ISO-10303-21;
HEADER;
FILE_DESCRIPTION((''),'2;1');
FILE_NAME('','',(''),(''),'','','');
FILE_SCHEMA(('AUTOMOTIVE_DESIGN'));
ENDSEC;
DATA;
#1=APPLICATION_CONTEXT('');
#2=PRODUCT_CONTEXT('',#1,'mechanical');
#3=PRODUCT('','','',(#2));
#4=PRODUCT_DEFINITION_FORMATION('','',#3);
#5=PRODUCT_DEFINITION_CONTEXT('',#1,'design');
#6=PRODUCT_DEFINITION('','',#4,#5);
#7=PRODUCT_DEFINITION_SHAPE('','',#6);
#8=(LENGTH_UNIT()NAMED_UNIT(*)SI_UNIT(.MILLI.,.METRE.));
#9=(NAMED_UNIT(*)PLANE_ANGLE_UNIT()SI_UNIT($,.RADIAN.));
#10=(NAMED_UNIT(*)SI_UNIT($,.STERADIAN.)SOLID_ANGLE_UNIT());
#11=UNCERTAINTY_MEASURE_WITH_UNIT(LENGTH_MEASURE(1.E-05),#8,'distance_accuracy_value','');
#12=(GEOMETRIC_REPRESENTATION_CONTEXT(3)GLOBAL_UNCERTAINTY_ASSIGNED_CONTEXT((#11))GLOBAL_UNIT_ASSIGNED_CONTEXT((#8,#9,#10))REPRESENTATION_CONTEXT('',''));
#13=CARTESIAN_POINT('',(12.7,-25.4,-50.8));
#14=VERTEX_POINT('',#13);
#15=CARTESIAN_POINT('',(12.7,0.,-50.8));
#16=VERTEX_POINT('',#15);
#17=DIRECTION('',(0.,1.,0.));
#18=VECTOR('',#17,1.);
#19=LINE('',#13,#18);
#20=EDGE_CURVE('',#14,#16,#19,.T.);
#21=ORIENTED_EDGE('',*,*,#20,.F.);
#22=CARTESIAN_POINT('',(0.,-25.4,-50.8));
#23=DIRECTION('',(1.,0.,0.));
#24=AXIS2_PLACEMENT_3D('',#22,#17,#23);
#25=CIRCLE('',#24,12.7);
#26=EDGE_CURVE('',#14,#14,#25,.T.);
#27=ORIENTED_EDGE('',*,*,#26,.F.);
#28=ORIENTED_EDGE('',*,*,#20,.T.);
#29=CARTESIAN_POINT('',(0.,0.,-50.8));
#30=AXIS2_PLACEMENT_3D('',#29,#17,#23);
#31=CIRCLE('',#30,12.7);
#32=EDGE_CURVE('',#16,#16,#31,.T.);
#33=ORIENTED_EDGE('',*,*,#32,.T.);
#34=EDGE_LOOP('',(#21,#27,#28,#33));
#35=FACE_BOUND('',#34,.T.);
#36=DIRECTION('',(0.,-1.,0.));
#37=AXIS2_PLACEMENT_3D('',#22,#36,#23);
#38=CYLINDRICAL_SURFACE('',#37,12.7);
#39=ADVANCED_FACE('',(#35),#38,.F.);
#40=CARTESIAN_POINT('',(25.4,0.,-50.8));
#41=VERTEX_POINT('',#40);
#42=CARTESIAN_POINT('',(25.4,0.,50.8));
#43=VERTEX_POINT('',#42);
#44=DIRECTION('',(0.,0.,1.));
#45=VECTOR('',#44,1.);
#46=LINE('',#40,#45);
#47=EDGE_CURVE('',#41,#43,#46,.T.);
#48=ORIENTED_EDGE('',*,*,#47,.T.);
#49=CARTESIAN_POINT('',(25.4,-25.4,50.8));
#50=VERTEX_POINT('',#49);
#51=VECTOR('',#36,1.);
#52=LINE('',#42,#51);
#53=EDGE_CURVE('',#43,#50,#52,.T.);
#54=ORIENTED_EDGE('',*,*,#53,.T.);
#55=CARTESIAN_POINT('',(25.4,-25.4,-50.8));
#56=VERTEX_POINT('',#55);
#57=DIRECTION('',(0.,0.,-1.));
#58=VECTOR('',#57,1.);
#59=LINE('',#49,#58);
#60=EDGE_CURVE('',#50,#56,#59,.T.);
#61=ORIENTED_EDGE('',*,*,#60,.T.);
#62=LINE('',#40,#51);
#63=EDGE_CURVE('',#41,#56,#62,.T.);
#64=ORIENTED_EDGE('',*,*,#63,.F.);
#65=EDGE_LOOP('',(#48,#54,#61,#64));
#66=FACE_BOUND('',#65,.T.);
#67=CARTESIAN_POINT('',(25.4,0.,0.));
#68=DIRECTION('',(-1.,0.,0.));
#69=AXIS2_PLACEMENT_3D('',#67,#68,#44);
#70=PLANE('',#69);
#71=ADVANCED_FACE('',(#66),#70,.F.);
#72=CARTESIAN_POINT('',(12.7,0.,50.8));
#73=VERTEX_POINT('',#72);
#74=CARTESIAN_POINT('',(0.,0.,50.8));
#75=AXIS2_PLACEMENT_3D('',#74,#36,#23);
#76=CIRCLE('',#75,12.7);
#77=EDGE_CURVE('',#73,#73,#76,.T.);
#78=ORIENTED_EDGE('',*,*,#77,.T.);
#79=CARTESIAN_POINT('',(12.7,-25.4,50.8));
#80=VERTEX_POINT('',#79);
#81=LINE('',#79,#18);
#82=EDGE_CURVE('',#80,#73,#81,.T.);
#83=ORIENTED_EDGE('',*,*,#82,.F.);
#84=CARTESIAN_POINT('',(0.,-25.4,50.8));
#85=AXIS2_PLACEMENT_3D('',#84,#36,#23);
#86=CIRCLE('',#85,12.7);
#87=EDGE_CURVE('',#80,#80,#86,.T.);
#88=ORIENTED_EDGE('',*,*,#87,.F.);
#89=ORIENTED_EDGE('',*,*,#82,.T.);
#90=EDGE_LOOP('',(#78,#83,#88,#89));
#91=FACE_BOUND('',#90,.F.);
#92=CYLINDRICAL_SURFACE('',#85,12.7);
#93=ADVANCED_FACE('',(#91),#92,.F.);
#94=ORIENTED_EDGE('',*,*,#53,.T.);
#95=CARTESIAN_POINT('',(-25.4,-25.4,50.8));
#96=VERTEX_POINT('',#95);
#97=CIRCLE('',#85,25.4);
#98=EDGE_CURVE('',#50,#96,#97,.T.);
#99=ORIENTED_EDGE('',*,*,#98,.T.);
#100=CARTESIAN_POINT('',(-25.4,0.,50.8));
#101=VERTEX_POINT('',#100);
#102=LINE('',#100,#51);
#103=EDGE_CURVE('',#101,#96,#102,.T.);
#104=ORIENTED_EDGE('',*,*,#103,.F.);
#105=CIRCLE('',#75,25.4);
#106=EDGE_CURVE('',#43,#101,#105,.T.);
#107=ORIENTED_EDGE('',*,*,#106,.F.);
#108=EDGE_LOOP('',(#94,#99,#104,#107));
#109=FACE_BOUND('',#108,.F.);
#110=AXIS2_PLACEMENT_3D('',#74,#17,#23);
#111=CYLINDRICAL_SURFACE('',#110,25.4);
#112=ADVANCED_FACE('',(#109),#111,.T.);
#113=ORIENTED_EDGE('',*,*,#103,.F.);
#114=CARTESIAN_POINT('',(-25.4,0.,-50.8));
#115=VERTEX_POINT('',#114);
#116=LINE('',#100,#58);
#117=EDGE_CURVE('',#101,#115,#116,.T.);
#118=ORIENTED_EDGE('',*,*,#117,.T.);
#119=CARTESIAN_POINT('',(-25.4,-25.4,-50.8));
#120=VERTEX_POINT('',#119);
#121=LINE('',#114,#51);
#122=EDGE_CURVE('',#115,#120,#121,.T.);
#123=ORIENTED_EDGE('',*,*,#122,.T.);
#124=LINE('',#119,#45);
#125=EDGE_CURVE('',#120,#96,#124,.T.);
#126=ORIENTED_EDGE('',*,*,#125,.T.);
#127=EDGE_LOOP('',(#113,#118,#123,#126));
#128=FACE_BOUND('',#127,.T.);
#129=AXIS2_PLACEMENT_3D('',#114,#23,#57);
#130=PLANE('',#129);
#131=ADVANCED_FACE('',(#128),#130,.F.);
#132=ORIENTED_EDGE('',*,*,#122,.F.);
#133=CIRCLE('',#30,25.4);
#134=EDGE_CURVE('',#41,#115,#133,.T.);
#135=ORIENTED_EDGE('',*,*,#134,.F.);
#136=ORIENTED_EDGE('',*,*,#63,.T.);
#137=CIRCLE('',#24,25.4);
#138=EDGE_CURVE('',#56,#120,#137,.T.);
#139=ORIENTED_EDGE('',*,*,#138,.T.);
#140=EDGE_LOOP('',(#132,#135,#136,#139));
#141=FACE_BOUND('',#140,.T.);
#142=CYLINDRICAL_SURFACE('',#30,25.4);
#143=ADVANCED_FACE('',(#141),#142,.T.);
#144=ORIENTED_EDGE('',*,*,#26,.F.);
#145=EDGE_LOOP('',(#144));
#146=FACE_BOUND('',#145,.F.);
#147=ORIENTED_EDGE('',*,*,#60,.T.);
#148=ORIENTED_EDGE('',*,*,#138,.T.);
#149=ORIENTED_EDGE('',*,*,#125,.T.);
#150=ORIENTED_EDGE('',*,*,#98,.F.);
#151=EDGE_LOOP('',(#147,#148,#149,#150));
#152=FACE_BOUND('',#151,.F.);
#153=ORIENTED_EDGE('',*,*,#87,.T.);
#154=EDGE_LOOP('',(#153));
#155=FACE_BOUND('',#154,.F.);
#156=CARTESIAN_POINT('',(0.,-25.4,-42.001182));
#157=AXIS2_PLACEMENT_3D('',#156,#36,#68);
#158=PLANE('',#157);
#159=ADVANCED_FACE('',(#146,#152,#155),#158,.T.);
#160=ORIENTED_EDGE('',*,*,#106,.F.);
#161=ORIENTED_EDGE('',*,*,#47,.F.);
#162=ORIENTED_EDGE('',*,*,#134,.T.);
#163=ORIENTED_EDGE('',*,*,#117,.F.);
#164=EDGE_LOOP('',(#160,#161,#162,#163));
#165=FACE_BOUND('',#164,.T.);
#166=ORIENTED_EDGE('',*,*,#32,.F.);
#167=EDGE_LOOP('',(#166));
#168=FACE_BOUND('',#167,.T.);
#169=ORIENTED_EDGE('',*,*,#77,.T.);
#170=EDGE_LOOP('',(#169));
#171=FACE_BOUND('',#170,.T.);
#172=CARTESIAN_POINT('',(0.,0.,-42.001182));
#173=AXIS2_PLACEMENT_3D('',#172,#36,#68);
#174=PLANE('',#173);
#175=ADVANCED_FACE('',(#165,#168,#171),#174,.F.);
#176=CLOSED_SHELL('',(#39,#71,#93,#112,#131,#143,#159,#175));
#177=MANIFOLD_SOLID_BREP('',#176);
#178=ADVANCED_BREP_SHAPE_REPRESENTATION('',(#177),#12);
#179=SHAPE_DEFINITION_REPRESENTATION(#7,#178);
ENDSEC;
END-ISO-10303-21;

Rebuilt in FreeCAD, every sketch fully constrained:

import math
import FreeCAD as App
import Part
import Sketcher

V = App.Vector
Q = App.Units.Quantity

doc = App.newDocument("Part")
body = doc.addObject("PartDesign::Body", "Body")

# Sketch on XZ plane
sketch1 = doc.addObject("Sketcher::SketchObject", "Sketch")
body.addObject(sketch1)
sketch1.AttachmentSupport = (doc.XZ_Plane, [""])
sketch1.MapMode = "FlatFace"
sketch1.addGeometry([
    Part.ArcOfCircle(Part.Circle(V(0, 51, 0), V(0, 0, 1), 25), math.radians(0), math.radians(180)),
    Part.LineSegment(V(-25, 51, 0), V(-25, 0, 0)),
    Part.LineSegment(V(-25, 0, 0), V(25, 0, 0)),
    Part.LineSegment(V(25, 0, 0), V(25, 51, 0)),
], False)
sketch1.addConstraint([
    Sketcher.Constraint("Tangent", 0, 2, 1, 1),
    Sketcher.Constraint("Coincident", 1, 2, 2, 1),
    Sketcher.Constraint("Coincident", 2, 2, 3, 1),
    Sketcher.Constraint("Tangent", 3, 2, 0, 1),
    Sketcher.Constraint("Vertical", 1),
    Sketcher.Constraint("Horizontal", 2),
    Sketcher.Constraint("Vertical", 3),
    Sketcher.Constraint("Symmetric", 1, 2, 2, 2, -1, 1),
    Sketcher.Constraint("Equal", 2, 1),
    Sketcher.Constraint("Radius", 0, Q("1 in")),
])
pad1 = doc.addObject("PartDesign::Pad", "Pad")
body.addObject(pad1)
pad1.Profile = sketch1
pad1.Length = Q("1 in")

# Sketch on XZ plane
sketch2 = doc.addObject("Sketcher::SketchObject", "Sketch001")
body.addObject(sketch2)
sketch2.AttachmentSupport = (doc.XZ_Plane, [""])
sketch2.MapMode = "FlatFace"
sketch2.AttachmentOffset = App.Placement(V(0, 0, 1 * 25.4), App.Rotation())
sketch2.addGeometry(Part.Circle(V(0, 51, 0), V(0, 0, 1), 13), False)
sketch2.addConstraint([
    Sketcher.Constraint("PointOnObject", 0, 3, -2),
    Sketcher.Constraint("Diameter", 0, Q("1 in")),
    Sketcher.Constraint("DistanceY", -1, 1, 0, 3, Q("2 in")),
])
pocket1 = doc.addObject("PartDesign::Pocket", "Pocket")
body.addObject(pocket1)
pocket1.Profile = sketch2
pocket1.Length = Q("2 in")
body2 = doc.addObject("PartDesign::Body", "Body001")
doc.recompute()

body2.BaseFeature = body
doc.recompute()

mirroring = doc.addObject("Part::Mirroring", "Mirroring")
mirroring.Source = body
mirroring.Base = V(0, -12.7, 0)
mirroring.Normal = V(0, 0, -1)
body3 = doc.addObject("PartDesign::Body", "Body002")
body3.BaseFeature = mirroring
boolean = doc.addObject("PartDesign::Boolean", "Boolean")
body2.addObject(boolean)
boolean.Type = "Fuse"
boolean.addObjects([body3])
doc.recompute()
mirroring.Visibility = False

doc.recompute()
